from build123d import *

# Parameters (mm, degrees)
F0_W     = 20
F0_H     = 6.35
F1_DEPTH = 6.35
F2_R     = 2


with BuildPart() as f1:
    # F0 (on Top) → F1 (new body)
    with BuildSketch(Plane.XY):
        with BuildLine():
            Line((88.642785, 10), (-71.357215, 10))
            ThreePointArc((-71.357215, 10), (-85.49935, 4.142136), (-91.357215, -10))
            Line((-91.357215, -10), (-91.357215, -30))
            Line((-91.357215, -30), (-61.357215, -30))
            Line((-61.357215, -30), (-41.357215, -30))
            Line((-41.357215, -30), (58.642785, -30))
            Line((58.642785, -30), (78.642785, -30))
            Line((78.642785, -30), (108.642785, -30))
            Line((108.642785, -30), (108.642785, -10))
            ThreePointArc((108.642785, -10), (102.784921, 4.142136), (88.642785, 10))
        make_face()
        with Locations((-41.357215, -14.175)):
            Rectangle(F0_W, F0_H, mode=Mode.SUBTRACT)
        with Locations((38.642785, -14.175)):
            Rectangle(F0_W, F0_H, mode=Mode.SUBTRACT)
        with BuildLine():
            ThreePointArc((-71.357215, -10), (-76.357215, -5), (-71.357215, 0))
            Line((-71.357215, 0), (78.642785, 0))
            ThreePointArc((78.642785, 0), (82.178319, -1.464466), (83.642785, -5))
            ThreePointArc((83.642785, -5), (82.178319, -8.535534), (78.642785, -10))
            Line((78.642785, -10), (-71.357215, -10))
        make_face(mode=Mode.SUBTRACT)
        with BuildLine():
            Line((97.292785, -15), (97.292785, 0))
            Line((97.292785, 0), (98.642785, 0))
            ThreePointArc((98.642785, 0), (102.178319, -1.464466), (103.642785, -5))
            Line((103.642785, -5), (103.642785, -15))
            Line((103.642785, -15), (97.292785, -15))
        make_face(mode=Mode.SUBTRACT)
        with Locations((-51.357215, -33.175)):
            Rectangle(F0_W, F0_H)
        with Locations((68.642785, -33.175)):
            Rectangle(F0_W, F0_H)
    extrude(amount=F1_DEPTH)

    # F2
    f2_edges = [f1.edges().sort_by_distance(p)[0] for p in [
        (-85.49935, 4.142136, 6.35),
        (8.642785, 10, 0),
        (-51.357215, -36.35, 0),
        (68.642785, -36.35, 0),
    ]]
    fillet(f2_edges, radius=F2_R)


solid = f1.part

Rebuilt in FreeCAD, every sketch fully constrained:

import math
import FreeCAD as App
import Part
import Sketcher

V = App.Vector
Q = App.Units.Quantity


def edges_at(feature, points):
    """Names of the edges that pass closest to the given points."""
    edges = feature.Shape.Edges
    near = lambda p: min(range(len(edges)), key=lambda i: edges[i].distToShape(Part.Vertex(*p))[0])
    return sorted({f"Edge{near(p) + 1}" for p in points})


def add_polygon(sketch, points):
    """Adds a closed chain of lines whose ends are joined by coincident constraints."""
    first, n = sketch.GeometryCount, len(points)
    for a, b in zip(points, points[1:] + points[:1]):
        sketch.addGeometry(Part.LineSegment(App.Vector(*a, 0), App.Vector(*b, 0)), False)
    for i in range(n):
        sketch.addConstraint(Sketcher.Constraint("Coincident", first + i, 2, first + (i + 1) % n, 1))

doc = App.newDocument("Part")
body = doc.addObject("PartDesign::Body", "Body")

# Sketch on XY plane
sketch1 = body.newObject("Sketcher::SketchObject", "Sketch")
sketch1.AttachmentSupport = (doc.getObject("XY_Plane"), [""])
sketch1.MapMode = "FlatFace"
sketch1.addGeometry(Part.LineSegment(V(88.6, 10, 0), V(-71.4, 10, 0)), False)  # 0
sketch1.addGeometry(Part.ArcOfCircle(Part.Circle(V(-71.4, -10, 0), V(0, 0, 1), 20), math.radians(90), math.radians(180)), False)  # 1
sketch1.addGeometry(Part.LineSegment(V(-91.4, -10, 0), V(-91.4, -30, 0)), False)  # 2
sketch1.addGeometry(Part.LineSegment(V(-91.4, -30, 0), V(-61.4, -30, 0)), False)  # 3
sketch1.addGeometry(Part.LineSegment(V(-61.4, -30, 0), V(-61.4, -36.4, 0)), False)  # 4
sketch1.addGeometry(Part.LineSegment(V(-61.4, -36.4, 0), V(-41.4, -36.4, 0)), False)  # 5
sketch1.addGeometry(Part.LineSegment(V(-41.4, -36.4, 0), V(-41.4, -30, 0)), False)  # 6
sketch1.addGeometry(Part.LineSegment(V(-41.4, -30, 0), V(58.6, -30, 0)), False)  # 7
sketch1.addGeometry(Part.LineSegment(V(58.6, -30, 0), V(58.6, -36.4, 0)), False)  # 8
sketch1.addGeometry(Part.LineSegment(V(58.6, -36.4, 0), V(78.6, -36.4, 0)), False)  # 9
sketch1.addGeometry(Part.LineSegment(V(78.6, -36.4, 0), V(78.6, -30, 0)), False)  # 10
sketch1.addGeometry(Part.LineSegment(V(78.6, -30, 0), V(108.6, -30, 0)), False)  # 11
sketch1.addGeometry(Part.LineSegment(V(108.6, -30, 0), V(108.6, -10, 0)), False)  # 12
sketch1.addGeometry(Part.ArcOfCircle(Part.Circle(V(88.6, -10, 0), V(0, 0, 1), 20), math.radians(0), math.radians(90)), False)  # 13
add_polygon(sketch1, [(-31.4, -17.4), (-51.4, -17.4), (-51.4, -11), (-31.4, -11)])  # lines 14-17
add_polygon(sketch1, [(48.6, -17.4), (28.6, -17.4), (28.6, -11), (48.6, -11)])  # lines 18-21
sketch1.addGeometry(Part.LineSegment(V(78.6, -10, 0), V(-71.4, -10, 0)), False)  # 22
sketch1.addGeometry(Part.ArcOfCircle(Part.Circle(V(-71.4, -5, 0), V(0, 0, 1), 5), math.radians(90), math.radians(270)), False)  # 23
sketch1.addGeometry(Part.LineSegment(V(-71.4, 0, 0), V(78.6, 0, 0)), False)  # 24
sketch1.addGeometry(Part.ArcOfCircle(Part.Circle(V(78.6, -5, 0), V(0, 0, 1), 5), math.radians(0), math.radians(90)), False)  # 25
sketch1.addGeometry(Part.ArcOfCircle(Part.Circle(V(78.6, -5, 0), V(0, 0, 1), 5), math.radians(-90), math.radians(0)), False)  # 26
sketch1.addGeometry(Part.LineSegment(V(103.6, -15, 0), V(97.3, -15, 0)), False)  # 27
sketch1.addGeometry(Part.LineSegment(V(97.3, -15, 0), V(97.3, 0, 0)), False)  # 28
sketch1.addGeometry(Part.LineSegment(V(97.3, 0, 0), V(98.6, 0, 0)), False)  # 29
sketch1.addGeometry(Part.ArcOfCircle(Part.Circle(V(98.6, -5, 0), V(0, 0, 1), 5), math.radians(0), math.radians(90)), False)  # 30
sketch1.addGeometry(Part.LineSegment(V(103.6, -5, 0), V(103.6, -15, 0)), False)  # 31
sketch1.addConstraint(Sketcher.Constraint("Tangent", 0, 2, 1, 1))
sketch1.addConstraint(Sketcher.Constraint("Tangent", 1, 2, 2, 1))
sketch1.addConstraint(Sketcher.Constraint("Coincident", 2, 2, 3, 1))
sketch1.addConstraint(Sketcher.Constraint("Coincident", 3, 2, 4, 1))
sketch1.addConstraint(Sketcher.Constraint("Coincident", 4, 2, 5, 1))
sketch1.addConstraint(Sketcher.Constraint("Coincident", 5, 2, 6, 1))
sketch1.addConstraint(Sketcher.Constraint("Coincident", 6, 2, 7, 1))
sketch1.addConstraint(Sketcher.Constraint("Coincident", 7, 2, 8, 1))
sketch1.addConstraint(Sketcher.Constraint("Coincident", 8, 2, 9, 1))
sketch1.addConstraint(Sketcher.Constraint("Coincident", 9, 2, 10, 1))
sketch1.addConstraint(Sketcher.Constraint("Coincident", 10, 2, 11, 1))
sketch1.addConstraint(Sketcher.Constraint("Coincident", 11, 2, 12, 1))
sketch1.addConstraint(Sketcher.Constraint("Tangent", 12, 2, 13, 1))
sketch1.addConstraint(Sketcher.Constraint("Tangent", 13, 2, 0, 1))
sketch1.addConstraint(Sketcher.Constraint("Tangent", 22, 2, 23, 2))
sketch1.addConstraint(Sketcher.Constraint("Tangent", 23, 1, 24, 1))
sketch1.addConstraint(Sketcher.Constraint("Tangent", 24, 2, 25, 2))
sketch1.addConstraint(Sketcher.Constraint("Tangent", 25, 1, 26, 2))
sketch1.addConstraint(Sketcher.Constraint("Tangent", 26, 1, 22, 1))
sketch1.addConstraint(Sketcher.Constraint("Coincident", 27, 2, 28, 1))
sketch1.addConstraint(Sketcher.Constraint("Coincident", 28, 2, 29, 1))
sketch1.addConstraint(Sketcher.Constraint("Tangent", 29, 2, 30, 2))
sketch1.addConstraint(Sketcher.Constraint("Tangent", 30, 1, 31, 1))
sketch1.addConstraint(Sketcher.Constraint("Coincident", 31, 2, 27, 1))
sketch1.addConstraint(Sketcher.Constraint("Horizontal", 0))
sketch1.addConstraint(Sketcher.Constraint("Vertical", 2))
sketch1.addConstraint(Sketcher.Constraint("Horizontal", 3))
sketch1.addConstraint(Sketcher.Constraint("Vertical", 4))
sketch1.addConstraint(Sketcher.Constraint("Horizontal", 5))
sketch1.addConstraint(Sketcher.Constraint("Vertical", 6))
sketch1.addConstraint(Sketcher.Constraint("Horizontal", 7))
sketch1.addConstraint(Sketcher.Constraint("Vertical", 8))
sketch1.addConstraint(Sketcher.Constraint("Horizontal", 9))
sketch1.addConstraint(Sketcher.Constraint("Vertical", 10))
sketch1.addConstraint(Sketcher.Constraint("Horizontal", 11))
sketch1.addConstraint(Sketcher.Constraint("Vertical", 12))
sketch1.addConstraint(Sketcher.Constraint("Horizontal", 14))
sketch1.addConstraint(Sketcher.Constraint("Vertical", 15))
sketch1.addConstraint(Sketcher.Constraint("Horizontal", 16))
sketch1.addConstraint(Sketcher.Constraint("Vertical", 17))
sketch1.addConstraint(Sketcher.Constraint("Horizontal", 18))
sketch1.addConstraint(Sketcher.Constraint("Vertical", 19))
sketch1.addConstraint(Sketcher.Constraint("Horizontal", 20))
sketch1.addConstraint(Sketcher.Constraint("Vertical", 21))
sketch1.addConstraint(Sketcher.Constraint("Horizontal", 22))
sketch1.addConstraint(Sketcher.Constraint("Horizontal", 24))
sketch1.addConstraint(Sketcher.Constraint("Horizontal", 27))
sketch1.addConstraint(Sketcher.Constraint("Vertical", 28))
sketch1.addConstraint(Sketcher.Constraint("Horizontal", 29))
sketch1.addConstraint(Sketcher.Constraint("Vertical", 31))
sketch1.addConstraint(Sketcher.Constraint("Coincident", 22, 2, 1, 3))
sketch1.addConstraint(Sketcher.Constraint("Equal", 1, 13))
sketch1.addConstraint(Sketcher.Constraint("Equal", 23, 25))
sketch1.addConstraint(Sketcher.Constraint("Equal", 26, 30))
sketch1.addConstraint(Sketcher.Constraint("PointOnObject", 23, 1, -1))
sketch1.addConstraint(Sketcher.Constraint("PointOnObject", 28, 2, -1))
sketch1.addConstraint(Sketcher.Constraint("Horizontal", 3, 2, 6, 2))
sketch1.addConstraint(Sketcher.Constraint("Horizontal", 5, 2, 8, 2))
sketch1.addConstraint(Sketcher.Constraint("Horizontal", 7, 2, 10, 2))
sketch1.addConstraint(Sketcher.Constraint("Horizontal", 17, 2, 18, 2))
sketch1.addConstraint(Sketcher.Constraint("Horizontal", 16, 2, 19, 2))
sketch1.addConstraint(Sketcher.Constraint("Horizontal", 30, 3, 25, 1))
sketch1.addConstraint(Sketcher.Constraint("Vertical", 26, 3, 9, 2))
sketch1.addConstraint(Sketcher.Constraint("Equal", 5, 9))
sketch1.addConstraint(Sketcher.Constraint("Equal", 3, 11))
sketch1.addConstraint(Sketcher.Constraint("Equal", 9, 14))
sketch1.addConstraint(Sketcher.Constraint("Equal", 16, 18))
sketch1.addConstraint(Sketcher.Constraint("Equal", 20, 2))
sketch1.addConstraint(Sketcher.Constraint("Equal", 27, 4))
sketch1.addConstraint(Sketcher.Constraint("Equal", 10, 15))
sketch1.addConstraint(Sketcher.Constraint("Radius", 1, Q("20 mm")))
sketch1.addConstraint(Sketcher.Constraint("Radius", 23, Q("5 mm")))
sketch1.addConstraint(Sketcher.Constraint("DistanceX", 0, 2, 0, 1, Q("160 mm")))
sketch1.addConstraint(Sketcher.Constraint("DistanceX", 3, 1, 3, 2, Q("30 mm")))
sketch1.addConstraint(Sketcher.Constraint("DistanceX", 5, 1, 5, 2, Q("20 mm")))
sketch1.addConstraint(Sketcher.Constraint("DistanceY", 28, 1, 28, 2, Q("15 mm")))
sketch1.addConstraint(Sketcher.Constraint("DistanceY", 15, 2, -1, 1, Q("11 mm")))
sketch1.addConstraint(Sketcher.Constraint("DistanceX", 13, 3, 30, 3, Q("9.999999 mm")))
sketch1.addConstraint(Sketcher.Constraint("DistanceX", 3, 2, 14, 2, Q("10 mm")))
sketch1.addConstraint(Sketcher.Constraint("DistanceX", 18, 2, 7, 2, Q("30 mm")))
sketch1.addConstraint(Sketcher.Constraint("DistanceX", 27, 2, 27, 1, Q("6.35 mm")))
sketch1.addConstraint(Sketcher.Constraint("DistanceX", 1, 3, -1, 1, Q("71.357215 mm")))
pad1 = body.newObject("PartDesign::Pad", "Pad")
pad1.Profile = sketch1
pad1.Length = 6.35
doc.recompute()

fillet = body.newObject("PartDesign::Fillet", "Fillet")
fillet.Base = (pad1, edges_at(pad1, [
    (-85.499, 4.142, 6.35),
    (8.643, 10, 0),
    (-51.357, -36.35, 0),
    (68.643, -36.35, 0),
]))
fillet.Radius = 2

doc.recompute()
